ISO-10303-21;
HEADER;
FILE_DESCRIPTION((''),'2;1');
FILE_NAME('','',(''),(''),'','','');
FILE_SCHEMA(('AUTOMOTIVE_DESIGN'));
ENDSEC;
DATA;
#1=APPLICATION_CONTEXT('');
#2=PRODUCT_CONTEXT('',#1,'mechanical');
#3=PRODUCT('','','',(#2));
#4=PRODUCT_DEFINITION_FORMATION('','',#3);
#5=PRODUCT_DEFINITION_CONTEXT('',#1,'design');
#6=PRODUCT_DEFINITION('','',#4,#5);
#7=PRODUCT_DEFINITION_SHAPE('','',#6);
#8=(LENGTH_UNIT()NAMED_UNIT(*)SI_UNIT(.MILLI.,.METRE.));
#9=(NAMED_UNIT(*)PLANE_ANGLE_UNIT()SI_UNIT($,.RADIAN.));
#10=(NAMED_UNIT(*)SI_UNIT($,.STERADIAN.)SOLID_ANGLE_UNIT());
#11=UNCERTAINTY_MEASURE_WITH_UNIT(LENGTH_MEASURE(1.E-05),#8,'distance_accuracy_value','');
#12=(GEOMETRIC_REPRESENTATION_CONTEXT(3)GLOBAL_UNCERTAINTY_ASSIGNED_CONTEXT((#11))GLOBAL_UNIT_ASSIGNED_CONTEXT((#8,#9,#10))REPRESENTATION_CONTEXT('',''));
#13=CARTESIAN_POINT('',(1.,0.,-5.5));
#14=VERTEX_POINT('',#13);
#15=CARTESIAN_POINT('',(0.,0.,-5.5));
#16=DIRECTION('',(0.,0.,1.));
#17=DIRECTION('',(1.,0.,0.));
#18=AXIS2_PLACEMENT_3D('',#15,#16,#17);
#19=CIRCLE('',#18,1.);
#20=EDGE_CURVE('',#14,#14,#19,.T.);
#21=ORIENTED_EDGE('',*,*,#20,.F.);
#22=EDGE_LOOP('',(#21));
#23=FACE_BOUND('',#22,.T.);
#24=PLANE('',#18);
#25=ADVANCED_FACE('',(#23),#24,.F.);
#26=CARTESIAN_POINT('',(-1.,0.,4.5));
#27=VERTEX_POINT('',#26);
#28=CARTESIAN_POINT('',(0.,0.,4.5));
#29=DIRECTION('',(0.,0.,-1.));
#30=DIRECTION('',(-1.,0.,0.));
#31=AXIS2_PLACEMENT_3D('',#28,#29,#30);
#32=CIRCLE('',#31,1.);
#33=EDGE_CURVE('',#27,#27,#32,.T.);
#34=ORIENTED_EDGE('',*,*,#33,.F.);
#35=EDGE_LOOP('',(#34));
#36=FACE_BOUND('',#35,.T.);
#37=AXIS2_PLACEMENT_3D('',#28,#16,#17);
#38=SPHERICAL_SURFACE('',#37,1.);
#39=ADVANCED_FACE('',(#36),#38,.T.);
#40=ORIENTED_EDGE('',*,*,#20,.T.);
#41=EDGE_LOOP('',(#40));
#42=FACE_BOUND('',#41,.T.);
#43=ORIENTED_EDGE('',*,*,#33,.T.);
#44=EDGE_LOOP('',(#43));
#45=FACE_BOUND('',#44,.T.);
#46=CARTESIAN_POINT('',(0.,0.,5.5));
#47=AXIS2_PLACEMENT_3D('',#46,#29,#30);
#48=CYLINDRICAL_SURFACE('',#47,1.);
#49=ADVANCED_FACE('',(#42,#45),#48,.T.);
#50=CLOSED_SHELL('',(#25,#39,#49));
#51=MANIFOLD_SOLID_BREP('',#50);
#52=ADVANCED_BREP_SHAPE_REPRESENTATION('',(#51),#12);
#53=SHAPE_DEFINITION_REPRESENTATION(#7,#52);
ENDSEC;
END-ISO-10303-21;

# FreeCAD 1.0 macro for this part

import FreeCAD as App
import Part
import Sketcher

V = App.Vector
Q = App.Units.Quantity


def edges_at(feature, points):
    """Names of the edges that pass closest to the given points."""
    edges = feature.Shape.Edges
    near = lambda p: min(range(len(edges)), key=lambda i: edges[i].distToShape(Part.Vertex(*p))[0])
    return sorted({f"Edge{near(p) + 1}" for p in points})

doc = App.newDocument("Part")
params = doc.addObject("Spreadsheet::Sheet", "Params")
for row, (alias, value) in enumerate([
    ("sketch1_diameter", "2 mm"),
    ("pad1_length", "11 mm"),
    ("fillet_radius", "1 mm"),
], start=1):
    params.set(f"A{row}", alias)
    params.set(f"B{row}", "=" + value)
    params.setAlias(f"B{row}", alias)

body = doc.addObject("PartDesign::Body", "Body")

# Sketch on XY plane
sketch1 = body.newObject("Sketcher::SketchObject", "Sketch")
sketch1.AttachmentSupport = (doc.getObject("XY_Plane"), [""])
sketch1.MapMode = "FlatFace"
sketch1.addGeometry(Part.Circle(V(0, 0, 0), V(0, 0, 1), 1), False)
sketch1.addConstraint([
    Sketcher.Constraint("Coincident", 0, 3, -1, 1),
    Sketcher.Constraint("Diameter", 0, Q("2 mm")),
])
sketch1.setExpression("Constraints[1]", "Params.sketch1_diameter")
pad1 = body.newObject("PartDesign::Pad", "Pad")
pad1.Profile = sketch1
pad1.setExpression("Length", "Params.pad1_length")
pad1.Midplane = True
doc.recompute()

fillet = body.newObject("PartDesign::Fillet", "Fillet")
fillet.Base = (pad1, edges_at(pad1, [(-1, 0, 5.5)]))
fillet.setExpression("Radius", "Params.fillet_radius")

doc.recompute()
